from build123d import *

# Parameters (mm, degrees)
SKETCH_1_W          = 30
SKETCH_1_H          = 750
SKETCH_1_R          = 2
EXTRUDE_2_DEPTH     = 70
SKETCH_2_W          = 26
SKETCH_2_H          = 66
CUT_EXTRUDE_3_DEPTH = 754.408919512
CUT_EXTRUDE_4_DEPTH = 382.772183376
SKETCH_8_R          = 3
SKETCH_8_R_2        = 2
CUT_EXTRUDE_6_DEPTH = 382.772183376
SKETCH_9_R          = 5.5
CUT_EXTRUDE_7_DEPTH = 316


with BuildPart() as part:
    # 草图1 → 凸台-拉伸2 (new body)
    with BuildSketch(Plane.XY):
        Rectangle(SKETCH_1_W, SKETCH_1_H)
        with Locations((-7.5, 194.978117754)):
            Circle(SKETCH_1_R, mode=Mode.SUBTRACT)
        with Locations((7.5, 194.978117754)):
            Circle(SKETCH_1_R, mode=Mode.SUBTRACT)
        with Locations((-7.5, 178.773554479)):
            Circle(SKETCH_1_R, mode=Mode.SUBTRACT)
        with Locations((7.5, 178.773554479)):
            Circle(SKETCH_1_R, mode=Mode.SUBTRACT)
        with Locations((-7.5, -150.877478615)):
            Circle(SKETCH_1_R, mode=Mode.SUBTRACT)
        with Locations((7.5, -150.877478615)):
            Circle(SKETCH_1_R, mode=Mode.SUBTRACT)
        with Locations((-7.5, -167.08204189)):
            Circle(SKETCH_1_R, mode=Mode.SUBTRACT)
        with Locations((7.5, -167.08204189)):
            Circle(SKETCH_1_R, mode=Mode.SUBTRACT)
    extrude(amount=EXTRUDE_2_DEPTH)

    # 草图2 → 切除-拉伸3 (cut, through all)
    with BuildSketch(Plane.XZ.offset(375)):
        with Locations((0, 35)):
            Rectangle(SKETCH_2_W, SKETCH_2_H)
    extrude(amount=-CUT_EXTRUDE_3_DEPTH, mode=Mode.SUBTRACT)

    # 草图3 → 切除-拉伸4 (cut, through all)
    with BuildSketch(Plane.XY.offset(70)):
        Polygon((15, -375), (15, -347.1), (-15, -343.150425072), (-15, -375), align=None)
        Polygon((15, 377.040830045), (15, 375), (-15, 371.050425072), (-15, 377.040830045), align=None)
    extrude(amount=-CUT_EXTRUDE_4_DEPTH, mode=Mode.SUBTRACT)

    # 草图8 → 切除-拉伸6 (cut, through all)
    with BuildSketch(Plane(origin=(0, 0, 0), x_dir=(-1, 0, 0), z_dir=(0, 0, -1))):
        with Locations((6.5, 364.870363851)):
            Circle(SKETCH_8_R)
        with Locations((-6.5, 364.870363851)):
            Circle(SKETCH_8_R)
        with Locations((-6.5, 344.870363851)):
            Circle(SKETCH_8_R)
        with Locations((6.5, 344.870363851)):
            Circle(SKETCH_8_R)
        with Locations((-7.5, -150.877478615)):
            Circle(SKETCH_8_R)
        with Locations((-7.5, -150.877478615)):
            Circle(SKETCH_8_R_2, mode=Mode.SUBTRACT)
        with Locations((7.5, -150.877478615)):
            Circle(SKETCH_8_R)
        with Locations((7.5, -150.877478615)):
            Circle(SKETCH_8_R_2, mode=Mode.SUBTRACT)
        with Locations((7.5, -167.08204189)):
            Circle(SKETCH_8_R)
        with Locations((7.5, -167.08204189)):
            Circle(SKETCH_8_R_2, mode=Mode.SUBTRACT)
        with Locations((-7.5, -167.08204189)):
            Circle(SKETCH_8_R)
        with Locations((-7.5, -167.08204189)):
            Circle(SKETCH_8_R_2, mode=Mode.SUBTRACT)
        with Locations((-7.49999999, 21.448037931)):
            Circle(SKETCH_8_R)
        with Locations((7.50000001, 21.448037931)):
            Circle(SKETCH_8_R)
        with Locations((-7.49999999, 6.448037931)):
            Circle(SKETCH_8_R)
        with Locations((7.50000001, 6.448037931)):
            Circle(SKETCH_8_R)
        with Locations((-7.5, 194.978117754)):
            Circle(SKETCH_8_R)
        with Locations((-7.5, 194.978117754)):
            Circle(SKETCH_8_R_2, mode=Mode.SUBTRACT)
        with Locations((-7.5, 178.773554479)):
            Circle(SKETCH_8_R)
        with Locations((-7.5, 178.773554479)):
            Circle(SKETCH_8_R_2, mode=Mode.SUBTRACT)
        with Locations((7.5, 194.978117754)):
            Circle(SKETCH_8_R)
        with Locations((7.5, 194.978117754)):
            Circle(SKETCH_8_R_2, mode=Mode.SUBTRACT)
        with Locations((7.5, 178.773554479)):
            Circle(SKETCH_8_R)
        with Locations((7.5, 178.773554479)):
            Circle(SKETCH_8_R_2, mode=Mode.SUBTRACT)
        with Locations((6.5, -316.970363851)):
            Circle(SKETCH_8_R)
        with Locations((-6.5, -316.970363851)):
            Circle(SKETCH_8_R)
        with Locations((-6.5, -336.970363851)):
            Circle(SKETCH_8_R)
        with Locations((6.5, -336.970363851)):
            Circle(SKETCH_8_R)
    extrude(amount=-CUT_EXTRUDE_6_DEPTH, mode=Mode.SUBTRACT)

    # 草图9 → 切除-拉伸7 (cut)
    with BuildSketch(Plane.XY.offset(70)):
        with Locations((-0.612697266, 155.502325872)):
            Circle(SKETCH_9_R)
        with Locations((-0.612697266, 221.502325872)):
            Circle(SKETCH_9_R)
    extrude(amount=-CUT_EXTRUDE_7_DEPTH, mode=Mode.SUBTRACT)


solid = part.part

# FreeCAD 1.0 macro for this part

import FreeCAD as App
import Part
import Sketcher
Q = App.Units.Quantity


def add_polygon(sketch, points):
    """Adds a closed chain of lines whose ends are joined by coincident constraints."""
    first, n = sketch.GeometryCount, len(points)
    for a, b in zip(points, points[1:] + points[:1]):
        sketch.addGeometry(Part.LineSegment(App.Vector(*a, 0), App.Vector(*b, 0)), False)
    for i in range(n):
        sketch.addConstraint(Sketcher.Constraint("Coincident", first + i, 2, first + (i + 1) % n, 1))

doc = App.newDocument("Part")
body = doc.addObject("PartDesign::Body", "Body")

# Sketch on XY plane
sketch1 = body.newObject("Sketcher::SketchObject", "Sketch")
sketch1.AttachmentSupport = (doc.getObject("XY_Plane"), [""])
sketch1.MapMode = "FlatFace"
add_polygon(sketch1, [(-15, 375), (-15, -375), (15, -375), (15, 375)])  # lines 0-3
sketch1.addGeometry(Part.Circle(App.Vector(-7.5, -167.1, 0), App.Vector(0, 0, 1), 2), False)  # 4
sketch1.addGeometry(Part.Circle(App.Vector(-7.5, -150.9, 0), App.Vector(0, 0, 1), 2), False)  # 5
sketch1.addGeometry(Part.Circle(App.Vector(7.5, -167.1, 0), App.Vector(0, 0, 1), 2), False)  # 6
sketch1.addGeometry(Part.Circle(App.Vector(7.5, -150.9, 0), App.Vector(0, 0, 1), 2), False)  # 7
sketch1.addGeometry(Part.Circle(App.Vector(-7.5, 178.8, 0), App.Vector(0, 0, 1), 2), False)  # 8
sketch1.addGeometry(Part.Circle(App.Vector(-7.5, 195, 0), App.Vector(0, 0, 1), 2), False)  # 9
sketch1.addGeometry(Part.Circle(App.Vector(7.5, 178.8, 0), App.Vector(0, 0, 1), 2), False)  # 10
sketch1.addGeometry(Part.Circle(App.Vector(7.5, 195, 0), App.Vector(0, 0, 1), 2), False)  # 11
sketch1.addConstraint([
    Sketcher.Constraint("Vertical", 0),
    Sketcher.Constraint("Horizontal", 1),
    Sketcher.Constraint("Vertical", 2),
    Sketcher.Constraint("Horizontal", 3),
    Sketcher.Constraint("Equal", 4, 5),
    Sketcher.Constraint("Equal", 5, 6),
    Sketcher.Constraint("Equal", 6, 7),
    Sketcher.Constraint("Equal", 7, 8),
    Sketcher.Constraint("Equal", 8, 9),
    Sketcher.Constraint("Equal", 9, 10),
    Sketcher.Constraint("Equal", 10, 11),
    Sketcher.Constraint("Symmetric", 0, 2, 2, 2, -1, 1),
    Sketcher.Constraint("Symmetric", 4, 3, 6, 3, -2),
    Sketcher.Constraint("Symmetric", 5, 3, 7, 3, -2),
    Sketcher.Constraint("Symmetric", 8, 3, 10, 3, -2),
    Sketcher.Constraint("Symmetric", 9, 3, 11, 3, -2),
    Sketcher.Constraint("Vertical", 4, 3, 5, 3),
    Sketcher.Constraint("Vertical", 5, 3, 8, 3),
    Sketcher.Constraint("Vertical", 8, 3, 9, 3),
    Sketcher.Constraint("Diameter", 4, Q("4 mm")),
    Sketcher.Constraint("DistanceX", 1, 1, 1, 2, Q("30 mm")),
    Sketcher.Constraint("DistanceY", 0, 2, 0, 1, Q("750 mm")),
    Sketcher.Constraint("DistanceX", 4, 3, 6, 3, Q("15 mm")),
    Sketcher.Constraint("DistanceY", 4, 3, -1, 1, Q("167.082042 mm")),
    Sketcher.Constraint("DistanceY", 5, 3, -1, 1, Q("150.877479 mm")),
    Sketcher.Constraint("DistanceY", 4, 3, 9, 3, Q("362.06016 mm")),
    Sketcher.Constraint("DistanceY", -1, 1, 8, 3, Q("178.773554 mm")),
])
pad1 = body.newObject("PartDesign::Pad", "Pad")
pad1.Profile = sketch1
pad1.Length = 70

# Sketch on XZ plane
sketch2 = body.newObject("Sketcher::SketchObject", "Sketch001")
sketch2.AttachmentSupport = (doc.getObject("XZ_Plane"), [""])
sketch2.MapMode = "FlatFace"
sketch2.AttachmentOffset = App.Placement(App.Vector(0, 0, 375), App.Rotation())
add_polygon(sketch2, [(-13, 68), (-13, 2), (13, 2), (13, 68)])  # lines 0-3
sketch2.addConstraint([
    Sketcher.Constraint("Vertical", 0),
    Sketcher.Constraint("Horizontal", 1),
    Sketcher.Constraint("Vertical", 2),
    Sketcher.Constraint("Horizontal", 3),
    Sketcher.Constraint("DistanceX", 1, 1, 1, 2, Q("26 mm")),
    Sketcher.Constraint("DistanceY", 0, 2, 0, 1, Q("66 mm")),
    Sketcher.Constraint("DistanceX", 0, 2, -1, 1, Q("13 mm")),
    Sketcher.Constraint("DistanceY", -1, 1, 0, 2, Q("2 mm")),
])
pocket1 = body.newObject("PartDesign::Pocket", "Pocket")
pocket1.Profile = sketch2
pocket1.Type = "ThroughAll"

# Sketch on XY plane
sketch3 = body.newObject("Sketcher::SketchObject", "Sketch002")
sketch3.AttachmentSupport = (doc.getObject("XY_Plane"), [""])
sketch3.MapMode = "FlatFace"
sketch3.AttachmentOffset = App.Placement(App.Vector(0, 0, 70), App.Rotation())
add_polygon(sketch3, [(15, -375), (15, -347.1), (-15, -343.2), (-15, -375)])  # lines 0-3
add_polygon(sketch3, [(15, 375), (15, 377), (-15, 377), (-15, 371.1)])  # lines 4-7
sketch3.addConstraint([
    Sketcher.Constraint("Vertical", 0),
    Sketcher.Constraint("Vertical", 2),
    Sketcher.Constraint("Horizontal", 3),
    Sketcher.Constraint("Vertical", 4),
    Sketcher.Constraint("Horizontal", 5),
    Sketcher.Constraint("Vertical", 6),
    Sketcher.Constraint("Symmetric", 2, 2, 7, 2, -1, 1),
    Sketcher.Constraint("Vertical", 3, 2, 4, 2),
    Sketcher.Constraint("Vertical", 2, 2, 5, 2),
    Sketcher.Constraint("Equal", 1, 7),
    Sketcher.Constraint("DistanceX", 3, 1, 3, 2, Q("30 mm")),
    Sketcher.Constraint("DistanceY", 0, 1, 0, 2, Q("27.9 mm")),
    Sketcher.Constraint("DistanceY", 2, 2, -1, 1, Q("375 mm")),
    Sketcher.Constraint("Angle", 1, Q("172.5 deg")),
    Sketcher.Constraint("DistanceY", 4, 1, 4, 2, Q("2.04083 mm")),
])
pocket2 = body.newObject("PartDesign::Pocket", "Pocket001")
pocket2.Profile = sketch3
pocket2.Type = "ThroughAll"

# Sketch on XY plane
sketch4 = body.newObject("Sketcher::SketchObject", "Sketch003")
sketch4.AttachmentSupport = (doc.getObject("XY_Plane"), [""])
sketch4.MapMode = "FlatFace"
sketch4.addGeometry([
    Part.Circle(App.Vector(-6.5, 364.9, 0), App.Vector(0, 0, 1), 3),  # 0
    Part.Circle(App.Vector(6.5, 364.9, 0), App.Vector(0, 0, 1), 3),  # 1
    Part.Circle(App.Vector(6.5, 344.9, 0), App.Vector(0, 0, 1), 3),  # 2
    Part.Circle(App.Vector(-6.5, 344.9, 0), App.Vector(0, 0, 1), 3),  # 3
    Part.Circle(App.Vector(7.5, -150.9, 0), App.Vector(0, 0, 1), 3),  # 4
    Part.Circle(App.Vector(7.5, -150.9, 0), App.Vector(0, 0, 1), 2),  # 5
    Part.Circle(App.Vector(-7.5, -150.9, 0), App.Vector(0, 0, 1), 3),  # 6
    Part.Circle(App.Vector(-7.5, -150.9, 0), App.Vector(0, 0, 1), 2),  # 7
    Part.Circle(App.Vector(-7.5, -167.1, 0), App.Vector(0, 0, 1), 3),  # 8
    Part.Circle(App.Vector(-7.5, -167.1, 0), App.Vector(0, 0, 1), 2),  # 9
    Part.Circle(App.Vector(7.5, -167.1, 0), App.Vector(0, 0, 1), 3),  # 10
    Part.Circle(App.Vector(7.5, -167.1, 0), App.Vector(0, 0, 1), 2),  # 11
    Part.Circle(App.Vector(7.5, 21.4, 0), App.Vector(0, 0, 1), 3),  # 12
    Part.Circle(App.Vector(-7.5, 21.4, 0), App.Vector(0, 0, 1), 3),  # 13
    Part.Circle(App.Vector(7.5, 6.4, 0), App.Vector(0, 0, 1), 3),  # 14
    Part.Circle(App.Vector(-7.5, 6.4, 0), App.Vector(0, 0, 1), 3),  # 15
    Part.Circle(App.Vector(7.5, 195, 0), App.Vector(0, 0, 1), 3),  # 16
    Part.Circle(App.Vector(7.5, 195, 0), App.Vector(0, 0, 1), 2),  # 17
    Part.Circle(App.Vector(7.5, 178.8, 0), App.Vector(0, 0, 1), 3),  # 18
    Part.Circle(App.Vector(7.5, 178.8, 0), App.Vector(0, 0, 1), 2),  # 19
    Part.Circle(App.Vector(-7.5, 195, 0), App.Vector(0, 0, 1), 3),  # 20
    Part.Circle(App.Vector(-7.5, 195, 0), App.Vector(0, 0, 1), 2),  # 21
    Part.Circle(App.Vector(-7.5, 178.8, 0), App.Vector(0, 0, 1), 3),  # 22
    Part.Circle(App.Vector(-7.5, 178.8, 0), App.Vector(0, 0, 1), 2),  # 23
    Part.Circle(App.Vector(-6.5, -317, 0), App.Vector(0, 0, 1), 3),  # 24
    Part.Circle(App.Vector(6.5, -317, 0), App.Vector(0, 0, 1), 3),  # 25
    Part.Circle(App.Vector(6.5, -337, 0), App.Vector(0, 0, 1), 3),  # 26
    Part.Circle(App.Vector(-6.5, -337, 0), App.Vector(0, 0, 1), 3),  # 27
], False)
sketch4.addConstraint([
    Sketcher.Constraint("Coincident", 5, 3, 4, 3),
    Sketcher.Constraint("Coincident", 7, 3, 6, 3),
    Sketcher.Constraint("Coincident", 9, 3, 8, 3),
    Sketcher.Constraint("Coincident", 11, 3, 10, 3),
    Sketcher.Constraint("Coincident", 17, 3, 16, 3),
    Sketcher.Constraint("Coincident", 19, 3, 18, 3),
    Sketcher.Constraint("Coincident", 21, 3, 20, 3),
    Sketcher.Constraint("Coincident", 23, 3, 22, 3),
    Sketcher.Constraint("Equal", 0, 1),
    Sketcher.Constraint("Equal", 1, 2),
    Sketcher.Constraint("Equal", 2, 3),
    Sketcher.Constraint("Equal", 3, 4),
    Sketcher.Constraint("Equal", 4, 6),
    Sketcher.Constraint("Equal", 5, 7),
    Sketcher.Constraint("Equal", 6, 8),
    Sketcher.Constraint("Equal", 7, 9),
    Sketcher.Constraint("Equal", 8, 10),
    Sketcher.Constraint("Equal", 9, 11),
    Sketcher.Constraint("Equal", 10, 12),
    Sketcher.Constraint("Equal", 12, 13),
    Sketcher.Constraint("Equal", 13, 14),
    Sketcher.Constraint("Equal", 14, 15),
    Sketcher.Constraint("Equal", 15, 16),
    Sketcher.Constraint("Equal", 11, 17),
    Sketcher.Constraint("Equal", 16, 18),
    Sketcher.Constraint("Equal", 17, 19),
    Sketcher.Constraint("Equal", 18, 20),
    Sketcher.Constraint("Equal", 19, 21),
    Sketcher.Constraint("Equal", 20, 22),
    Sketcher.Constraint("Equal", 21, 23),
    Sketcher.Constraint("Equal", 22, 24),
    Sketcher.Constraint("Equal", 24, 25),
    Sketcher.Constraint("Equal", 25, 26),
    Sketcher.Constraint("Equal", 26, 27),
    Sketcher.Constraint("Symmetric", 0, 3, 1, 3, -2),
    Sketcher.Constraint("Symmetric", 2, 3, 3, 3, -2),
    Sketcher.Constraint("Symmetric", 4, 3, 6, 3, -2),
    Sketcher.Constraint("Symmetric", 8, 3, 10, 3, -2),
    Sketcher.Constraint("Symmetric", 12, 3, 13, 3, -2),
    Sketcher.Constraint("Symmetric", 14, 3, 15, 3, -2),
    Sketcher.Constraint("Symmetric", 16, 3, 20, 3, -2),
    Sketcher.Constraint("Symmetric", 18, 3, 22, 3, -2),
    Sketcher.Constraint("Symmetric", 24, 3, 25, 3, -2),
    Sketcher.Constraint("Symmetric", 26, 3, 27, 3, -2),
    Sketcher.Constraint("Vertical", 1, 3, 2, 3),
    Sketcher.Constraint("Vertical", 7, 3, 8, 3),
    Sketcher.Constraint("Vertical", 11, 3, 12, 3),
    Sketcher.Constraint("Vertical", 12, 3, 14, 3),
    Sketcher.Constraint("Vertical", 14, 3, 16, 3),
    Sketcher.Constraint("Vertical", 17, 3, 18, 3),
    Sketcher.Constraint("Vertical", 3, 3, 24, 3),
    Sketcher.Constraint("Vertical", 25, 3, 26, 3),
    Sketcher.Constraint("Diameter", 0, Q("6 mm")),
    Sketcher.Constraint("Diameter", 5, Q("4 mm")),
    Sketcher.Constraint("DistanceX", 0, 3, 1, 3, Q("13 mm")),
    Sketcher.Constraint("DistanceY", 2, 3, 1, 3, Q("20 mm")),
    Sketcher.Constraint("DistanceX", 2, 3, 4, 3, Q("1 mm")),
    Sketcher.Constraint("DistanceY", 14, 3, 12, 3, Q("15 mm")),
    Sketcher.Constraint("DistanceY", 26, 3, 25, 3, Q("20 mm")),
    Sketcher.Constraint("DistanceY", 4, 3, -1, 1, Q("150.877479 mm")),
    Sketcher.Constraint("DistanceY", 8, 3, -1, 1, Q("167.082042 mm")),
    Sketcher.Constraint("DistanceY", 10, 3, 12, 3, Q("188.53008 mm")),
    Sketcher.Constraint("DistanceY", 12, 3, 16, 3, Q("173.53008 mm")),
    Sketcher.Constraint("DistanceY", 18, 3, 2, 3, Q("166.096809 mm")),
    Sketcher.Constraint("DistanceY", 24, 3, 8, 3, Q("149.888322 mm")),
    Sketcher.Constraint("DistanceY", -1, 1, 0, 3, Q("364.870364 mm")),
])
pocket3 = body.newObject("PartDesign::Pocket", "Pocket002")
pocket3.Profile = sketch4
pocket3.Type = "ThroughAll"
pocket3.Reversed = True

# Sketch on XY plane
sketch5 = body.newObject("Sketcher::SketchObject", "Sketch004")
sketch5.AttachmentSupport = (doc.getObject("XY_Plane"), [""])
sketch5.MapMode = "FlatFace"
sketch5.AttachmentOffset = App.Placement(App.Vector(0, 0, 70), App.Rotation())
sketch5.addGeometry([
    Part.Circle(App.Vector(-1, 156, 0), App.Vector(0, 0, 1), 6),
    Part.Circle(App.Vector(-1, 222, 0), App.Vector(0, 0, 1), 6),
], False)
sketch5.addConstraint([
    Sketcher.Constraint("Equal", 0, 1),
    Sketcher.Constraint("Vertical", 0, 3, 1, 3),
    Sketcher.Constraint("Diameter", 0, Q("11 mm")),
    Sketcher.Constraint("DistanceY", 0, 3, 1, 3, Q("66 mm")),
    Sketcher.Constraint("DistanceX", 0, 3, -1, 1, Q("0.612697 mm")),
    Sketcher.Constraint("DistanceY", -1, 1, 0, 3, Q("155.502326 mm")),
])
pocket4 = body.newObject("PartDesign::Pocket", "Pocket003")
pocket4.Profile = sketch5
pocket4.Length = 316

doc.recompute()
